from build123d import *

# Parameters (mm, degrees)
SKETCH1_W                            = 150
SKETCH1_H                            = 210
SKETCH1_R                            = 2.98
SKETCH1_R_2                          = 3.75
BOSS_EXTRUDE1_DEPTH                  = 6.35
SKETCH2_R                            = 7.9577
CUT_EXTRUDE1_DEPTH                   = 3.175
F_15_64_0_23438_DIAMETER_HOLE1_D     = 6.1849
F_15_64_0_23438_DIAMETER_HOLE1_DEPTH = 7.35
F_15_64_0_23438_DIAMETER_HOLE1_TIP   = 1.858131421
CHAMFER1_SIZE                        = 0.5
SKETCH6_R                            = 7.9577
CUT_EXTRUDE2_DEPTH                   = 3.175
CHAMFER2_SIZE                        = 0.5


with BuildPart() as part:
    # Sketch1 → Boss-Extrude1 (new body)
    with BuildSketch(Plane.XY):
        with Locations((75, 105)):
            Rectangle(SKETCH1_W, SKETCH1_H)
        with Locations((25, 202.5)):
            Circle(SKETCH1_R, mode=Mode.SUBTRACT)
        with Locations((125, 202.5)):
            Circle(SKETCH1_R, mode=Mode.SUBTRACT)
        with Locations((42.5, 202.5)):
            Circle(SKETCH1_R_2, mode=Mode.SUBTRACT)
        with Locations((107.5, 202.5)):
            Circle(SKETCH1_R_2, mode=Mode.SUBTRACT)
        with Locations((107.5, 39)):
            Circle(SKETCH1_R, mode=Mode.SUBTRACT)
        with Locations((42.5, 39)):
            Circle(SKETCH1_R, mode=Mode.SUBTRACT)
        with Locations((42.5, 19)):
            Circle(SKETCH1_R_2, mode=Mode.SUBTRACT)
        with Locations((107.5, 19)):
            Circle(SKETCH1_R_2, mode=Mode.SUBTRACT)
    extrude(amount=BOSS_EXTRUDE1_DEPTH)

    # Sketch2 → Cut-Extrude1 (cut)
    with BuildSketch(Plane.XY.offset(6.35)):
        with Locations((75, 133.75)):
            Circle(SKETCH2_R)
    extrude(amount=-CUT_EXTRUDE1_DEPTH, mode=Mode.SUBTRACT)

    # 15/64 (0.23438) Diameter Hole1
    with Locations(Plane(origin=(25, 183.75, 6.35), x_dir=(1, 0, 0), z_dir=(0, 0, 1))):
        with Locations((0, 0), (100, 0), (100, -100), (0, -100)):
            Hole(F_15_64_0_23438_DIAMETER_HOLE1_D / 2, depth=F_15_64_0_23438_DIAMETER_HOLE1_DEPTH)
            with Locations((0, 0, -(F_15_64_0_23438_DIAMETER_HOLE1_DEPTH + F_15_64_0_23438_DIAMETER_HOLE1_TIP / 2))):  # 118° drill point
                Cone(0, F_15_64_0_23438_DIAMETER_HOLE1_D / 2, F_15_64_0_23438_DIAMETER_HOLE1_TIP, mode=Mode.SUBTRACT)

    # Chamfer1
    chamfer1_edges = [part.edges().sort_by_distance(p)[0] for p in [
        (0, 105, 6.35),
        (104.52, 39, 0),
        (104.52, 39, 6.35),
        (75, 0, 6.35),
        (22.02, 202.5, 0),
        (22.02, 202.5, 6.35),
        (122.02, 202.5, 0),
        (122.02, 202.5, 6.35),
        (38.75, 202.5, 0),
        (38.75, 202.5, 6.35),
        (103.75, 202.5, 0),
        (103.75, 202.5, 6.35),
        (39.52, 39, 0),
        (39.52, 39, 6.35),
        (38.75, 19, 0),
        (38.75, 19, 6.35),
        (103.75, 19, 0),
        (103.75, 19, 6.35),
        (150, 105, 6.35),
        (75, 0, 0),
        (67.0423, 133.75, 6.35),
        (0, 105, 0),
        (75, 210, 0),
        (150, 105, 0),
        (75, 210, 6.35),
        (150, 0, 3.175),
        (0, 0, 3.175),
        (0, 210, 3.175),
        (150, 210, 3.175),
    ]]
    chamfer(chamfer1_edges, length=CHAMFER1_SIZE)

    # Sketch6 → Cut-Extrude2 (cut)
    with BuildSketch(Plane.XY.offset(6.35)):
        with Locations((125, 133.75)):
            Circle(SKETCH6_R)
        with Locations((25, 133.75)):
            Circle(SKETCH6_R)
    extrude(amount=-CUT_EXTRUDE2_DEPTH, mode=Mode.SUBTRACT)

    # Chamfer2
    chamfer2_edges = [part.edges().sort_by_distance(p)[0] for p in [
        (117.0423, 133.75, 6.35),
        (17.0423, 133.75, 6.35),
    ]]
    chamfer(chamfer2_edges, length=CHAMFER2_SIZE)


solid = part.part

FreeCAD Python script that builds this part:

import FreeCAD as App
import Part
import Sketcher
from FreeCAD import Vector
Q = App.Units.Quantity


def edges_at(feature, points):
    """Names of the edges that pass closest to the given points."""
    edges = feature.Shape.Edges
    near = lambda p: min(range(len(edges)), key=lambda i: edges[i].distToShape(Part.Vertex(*p))[0])
    return sorted({f"Edge{near(p) + 1}" for p in points})

doc = App.newDocument("Part")
params = doc.addObject("Spreadsheet::Sheet", "Params")
for row, (alias, value) in enumerate([
    ("sketch1_diameter", "7.5 mm"),
    ("sketch1_diameter2", "5.96 mm"),
    ("sketch1_width", "150 mm"),
    ("sketch1_height", "210 mm"),
    ("pad1_length", "6.35 mm"),
    ("pocket1_length", "3.175 mm"),
    ("hole_diameter", "6.1849 mm"),
    ("hole_depth", "7.35 mm"),
    ("chamfer_size", "0.5 mm"),
    ("pocket2_length", "3.175 mm"),
    ("chamfer2_size", "0.5 mm"),
], start=1):
    params.set(f"A{row}", alias)
    params.set(f"B{row}", "=" + value)
    params.setAlias(f"B{row}", alias)

body = doc.addObject("PartDesign::Body", "Body")

sketch1 = body.newObject("Sketcher::SketchObject", "Sketch")
sketch1.AttachmentSupport = (doc.getObject("XY_Plane"), [""])
sketch1.MapMode = "FlatFace"
sketch1.addGeometry([
    Part.LineSegment(Vector(0, 210, 0), Vector(0, 0, 0)),
    Part.LineSegment(Vector(0, 0, 0), Vector(150, 0, 0)),
    Part.LineSegment(Vector(150, 0, 0), Vector(150, 210, 0)),
    Part.LineSegment(Vector(150, 210, 0), Vector(0, 210, 0)),
    Part.Circle(Vector(42.5, 19, 0), Vector(0, 0, 1), 3.8),
    Part.Circle(Vector(42.5, 39, 0), Vector(0, 0, 1), 3),
    Part.Circle(Vector(107.5, 19, 0), Vector(0, 0, 1), 3.8),
    Part.Circle(Vector(107.5, 39, 0), Vector(0, 0, 1), 3),
    Part.Circle(Vector(25, 202.5, 0), Vector(0, 0, 1), 3),
    Part.Circle(Vector(42.5, 202.5, 0), Vector(0, 0, 1), 3.8),
    Part.Circle(Vector(107.5, 202.5, 0), Vector(0, 0, 1), 3.8),
    Part.Circle(Vector(125, 202.5, 0), Vector(0, 0, 1), 3),
], False)
sketch1.addConstraint([
    Sketcher.Constraint("Coincident", 0, 2, 1, 1),
    Sketcher.Constraint("Coincident", 1, 2, 2, 1),
    Sketcher.Constraint("Coincident", 2, 2, 3, 1),
    Sketcher.Constraint("Coincident", 3, 2, 0, 1),
    Sketcher.Constraint("Vertical", 0),
    Sketcher.Constraint("Horizontal", 1),
    Sketcher.Constraint("Vertical", 2),
    Sketcher.Constraint("Horizontal", 3),
    Sketcher.Constraint("Coincident", 0, 2, -1, 1),
    Sketcher.Constraint("Equal", 4, 6),
    Sketcher.Constraint("Equal", 5, 7),
    Sketcher.Constraint("Equal", 7, 8),
    Sketcher.Constraint("Equal", 6, 9),
    Sketcher.Constraint("Equal", 9, 10),
    Sketcher.Constraint("Equal", 8, 11),
    Sketcher.Constraint("Horizontal", 4, 3, 6, 3),
    Sketcher.Constraint("Horizontal", 5, 3, 7, 3),
    Sketcher.Constraint("Horizontal", 8, 3, 9, 3),
    Sketcher.Constraint("Horizontal", 9, 3, 10, 3),
    Sketcher.Constraint("Horizontal", 10, 3, 11, 3),
    Sketcher.Constraint("Vertical", 4, 3, 5, 3),
    Sketcher.Constraint("Vertical", 6, 3, 7, 3),
    Sketcher.Constraint("Vertical", 5, 3, 9, 3),
    Sketcher.Constraint("Vertical", 7, 3, 10, 3),
    Sketcher.Constraint("Diameter", 4, Q("7.5 mm")),
    Sketcher.Constraint("Diameter", 5, Q("5.96 mm")),
    Sketcher.Constraint("DistanceX", 1, 1, 1, 2, Q("150 mm")),
    Sketcher.Constraint("DistanceY", 0, 2, 0, 1, Q("210 mm")),
    Sketcher.Constraint("DistanceY", -1, 1, 4, 3, Q("19 mm")),
    Sketcher.Constraint("DistanceY", -1, 1, 5, 3, Q("39 mm")),
    Sketcher.Constraint("DistanceX", -1, 1, 8, 3, Q("25 mm")),
    Sketcher.Constraint("DistanceX", -1, 1, 11, 3, Q("125 mm")),
    Sketcher.Constraint("DistanceX", 4, 3, 6, 3, Q("65 mm")),
    Sketcher.Constraint("DistanceX", -1, 1, 4, 3, Q("42.5 mm")),
    Sketcher.Constraint("DistanceY", -1, 1, 8, 3, Q("202.5 mm")),
])
sketch1.setExpression("Constraints[24]", "Params.sketch1_diameter")
sketch1.setExpression("Constraints[25]", "Params.sketch1_diameter2")
sketch1.setExpression("Constraints[26]", "Params.sketch1_width")
sketch1.setExpression("Constraints[27]", "Params.sketch1_height")
pad1 = body.newObject("PartDesign::Pad", "Pad")
pad1.Profile = sketch1
pad1.setExpression("Length", "Params.pad1_length")

sketch2 = body.newObject("Sketcher::SketchObject", "Sketch001")
sketch2.AttachmentSupport = (doc.getObject("XY_Plane"), [""])
sketch2.MapMode = "FlatFace"
sketch2.AttachmentOffset = App.Placement(Vector(0, 0, 6.35), App.Rotation())
sketch2.addGeometry(Part.Circle(Vector(75, 134, 0), Vector(0, 0, 1), 8), False)
sketch2.addConstraint([
    Sketcher.Constraint("DistanceX", -1, 1, 0, 3, Q("75 mm")),
    Sketcher.Constraint("Diameter", 0, Q("15.9154 mm")),
    Sketcher.Constraint("DistanceY", -1, 1, 0, 3, Q("133.75 mm")),
])
pocket1 = body.newObject("PartDesign::Pocket", "Pocket")
pocket1.Profile = sketch2
pocket1.setExpression("Length", "Params.pocket1_length")

sketch3 = body.newObject("Sketcher::SketchObject", "Sketch002")
sketch3.AttachmentSupport = (doc.getObject("XY_Plane"), [""])
sketch3.MapMode = "FlatFace"
sketch3.AttachmentOffset = App.Placement(Vector(0, 0, 6.35), App.Rotation())
sketch3.addGeometry([
    Part.Circle(Vector(25, 183.8, 0), Vector(0, 0, 1), 3.1),
    Part.Circle(Vector(125, 183.8, 0), Vector(0, 0, 1), 3.1),
    Part.Circle(Vector(125, 83.8, 0), Vector(0, 0, 1), 3.1),
    Part.Circle(Vector(25, 83.8, 0), Vector(0, 0, 1), 3.1),
], False)
sketch3.addConstraint([
    Sketcher.Constraint("Equal", 0, 1),
    Sketcher.Constraint("Equal", 1, 2),
    Sketcher.Constraint("Equal", 2, 3),
    Sketcher.Constraint("Horizontal", 0, 3, 1, 3),
    Sketcher.Constraint("Horizontal", 2, 3, 3, 3),
    Sketcher.Constraint("Vertical", 1, 3, 2, 3),
    Sketcher.Constraint("Vertical", 0, 3, 3, 3),
    Sketcher.Constraint("DistanceX", -1, 1, 0, 3, Q("25 mm")),
    Sketcher.Constraint("DistanceX", -1, 1, 1, 3, Q("125 mm")),
    Sketcher.Constraint("DistanceY", 2, 3, 1, 3, Q("100 mm")),
    Sketcher.Constraint("Diameter", 0, Q("6.1849 mm")),
    Sketcher.Constraint("DistanceY", -1, 1, 0, 3, Q("183.75 mm")),
])
doc.recompute()
hole = body.newObject("PartDesign::Hole", "Hole")
hole.Profile = sketch3
hole.ThreadType = "None"
hole.setExpression("Diameter", "Params.hole_diameter")
hole.DepthType = "Dimension"
hole.setExpression("Depth", "Params.hole_depth")
hole.DrillPoint = "Angled"
hole.DrillPointAngle = 118
doc.recompute()

chamfer = body.newObject("PartDesign::Chamfer", "Chamfer")
chamfer.Base = (hole, edges_at(hole, [
    (0, 105, 6.35),
    (104.52, 39, 0),
    (104.52, 39, 6.35),
    (75, 0, 6.35),
    (22.02, 202.5, 0),
    (22.02, 202.5, 6.35),
    (122.02, 202.5, 0),
    (122.02, 202.5, 6.35),
    (38.75, 202.5, 0),
    (38.75, 202.5, 6.35),
    (103.75, 202.5, 0),
    (103.75, 202.5, 6.35),
    (39.52, 39, 0),
    (39.52, 39, 6.35),
    (38.75, 19, 0),
    (38.75, 19, 6.35),
    (103.75, 19, 0),
    (103.75, 19, 6.35),
    (150, 105, 6.35),
    (75, 0, 0),
    (67.042, 133.75, 6.35),
    (0, 105, 0),
    (75, 210, 0),
    (150, 105, 0),
    (75, 210, 6.35),
    (150, 0, 3.175),
    (0, 0, 3.175),
    (0, 210, 3.175),
    (150, 210, 3.175),
]))
chamfer.setExpression("Size", "Params.chamfer_size")

sketch4 = body.newObject("Sketcher::SketchObject", "Sketch003")
sketch4.AttachmentSupport = (doc.getObject("XY_Plane"), [""])
sketch4.MapMode = "FlatFace"
sketch4.AttachmentOffset = App.Placement(Vector(0, 0, 6.35), App.Rotation())
sketch4.addGeometry([
    Part.Circle(Vector(125, 134, 0), Vector(0, 0, 1), 8),
    Part.Circle(Vector(25, 134, 0), Vector(0, 0, 1), 8),
], False)
sketch4.addConstraint([
    Sketcher.Constraint("Equal", 0, 1),
    Sketcher.Constraint("Horizontal", 0, 3, 1, 3),
    Sketcher.Constraint("DistanceX", -1, 1, 0, 3, Q("125 mm")),
    Sketcher.Constraint("DistanceX", -1, 1, 1, 3, Q("25 mm")),
    Sketcher.Constraint("Diameter", 0, Q("15.9154 mm")),
    Sketcher.Constraint("DistanceY", -1, 1, 0, 3, Q("133.75 mm")),
])
pocket2 = body.newObject("PartDesign::Pocket", "Pocket001")
pocket2.Profile = sketch4
pocket2.setExpression("Length", "Params.pocket2_length")
doc.recompute()

chamfer2 = body.newObject("PartDesign::Chamfer", "Chamfer001")
chamfer2.Base = (pocket2, edges_at(pocket2, [(117.042, 133.75, 6.35), (17.042, 133.75, 6.35)]))
chamfer2.setExpression("Size", "Params.chamfer2_size")

doc.recompute()
